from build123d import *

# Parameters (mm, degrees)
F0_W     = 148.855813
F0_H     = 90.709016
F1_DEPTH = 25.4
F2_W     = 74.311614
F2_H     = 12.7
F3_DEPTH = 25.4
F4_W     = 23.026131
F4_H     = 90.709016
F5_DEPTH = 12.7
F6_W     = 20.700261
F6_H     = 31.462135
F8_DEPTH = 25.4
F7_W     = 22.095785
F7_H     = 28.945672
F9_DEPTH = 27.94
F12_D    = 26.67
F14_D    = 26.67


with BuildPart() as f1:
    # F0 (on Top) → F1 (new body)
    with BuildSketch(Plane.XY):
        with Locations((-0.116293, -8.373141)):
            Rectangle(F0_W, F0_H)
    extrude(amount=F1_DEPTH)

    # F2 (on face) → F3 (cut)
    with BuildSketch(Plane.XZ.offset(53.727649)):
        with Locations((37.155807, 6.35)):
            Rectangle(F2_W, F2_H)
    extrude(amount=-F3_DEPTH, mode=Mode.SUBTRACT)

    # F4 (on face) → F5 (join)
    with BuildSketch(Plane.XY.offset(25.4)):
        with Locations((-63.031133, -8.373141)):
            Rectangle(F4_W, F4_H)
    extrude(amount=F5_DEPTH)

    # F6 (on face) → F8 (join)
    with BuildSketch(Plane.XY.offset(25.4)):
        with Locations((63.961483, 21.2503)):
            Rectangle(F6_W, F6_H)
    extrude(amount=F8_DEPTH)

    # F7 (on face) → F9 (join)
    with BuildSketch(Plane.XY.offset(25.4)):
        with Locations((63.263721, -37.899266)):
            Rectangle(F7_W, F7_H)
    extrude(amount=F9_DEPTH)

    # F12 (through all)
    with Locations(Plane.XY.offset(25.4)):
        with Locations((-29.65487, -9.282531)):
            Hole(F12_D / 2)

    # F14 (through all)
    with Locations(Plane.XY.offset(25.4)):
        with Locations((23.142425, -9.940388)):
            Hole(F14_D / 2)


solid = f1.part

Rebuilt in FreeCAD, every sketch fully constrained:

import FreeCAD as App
import Part
import Sketcher

V = App.Vector
Q = App.Units.Quantity

doc = App.newDocument("Part")
params = doc.addObject("Spreadsheet::Sheet", "Params")
for row, (alias, value) in enumerate([
    ("pad1_length", "1 in"),
    ("sketch2_height", "0.5 in"),
    ("pocket1_length", "1 in"),
    ("pad2_length", "0.5 in"),
    ("pad3_length", "1 in"),
    ("pad4_length", "1.1 in"),
    ("sketch6_diameter", "1.05 in"),
    ("hole_diameter", "1.05 in"),
    ("sketch7_diameter", "1.05 in"),
    ("hole2_diameter", "1.05 in"),
], start=1):
    params.set(f"A{row}", alias)
    params.set(f"B{row}", "=" + value)
    params.setAlias(f"B{row}", alias)

body = doc.addObject("PartDesign::Body", "Body")

sketch1 = body.newObject("Sketcher::SketchObject", "Sketch")
sketch1.AttachmentSupport = (doc.getObject("XY_Plane"), [""])
sketch1.MapMode = "FlatFace"
sketch1.addGeometry([
    Part.LineSegment(V(-75, 37, 0), V(-75, -54, 0)),
    Part.LineSegment(V(-75, -54, 0), V(74, -54, 0)),
    Part.LineSegment(V(74, -54, 0), V(74, 37, 0)),
    Part.LineSegment(V(74, 37, 0), V(-75, 37, 0)),
], False)
sketch1.addConstraint([
    Sketcher.Constraint("Coincident", 0, 2, 1, 1),
    Sketcher.Constraint("Coincident", 1, 2, 2, 1),
    Sketcher.Constraint("Coincident", 2, 2, 3, 1),
    Sketcher.Constraint("Coincident", 3, 2, 0, 1),
    Sketcher.Constraint("Vertical", 0),
    Sketcher.Constraint("Horizontal", 1),
    Sketcher.Constraint("Vertical", 2),
    Sketcher.Constraint("Horizontal", 3),
    Sketcher.Constraint("DistanceX", 0, 2, -1, 1, 74.5442),
    Sketcher.Constraint("DistanceX", 1, 1, 1, 2, 148.855813),
    Sketcher.Constraint("DistanceY", 0, 2, 0, 1, 90.709016),
    Sketcher.Constraint("DistanceY", 0, 2, -1, 1, 53.727649),
])
pad1 = body.newObject("PartDesign::Pad", "Pad")
pad1.Profile = sketch1
pad1.setExpression("Length", "Params.pad1_length")

sketch2 = body.newObject("Sketcher::SketchObject", "Sketch001")
sketch2.AttachmentSupport = (doc.getObject("XZ_Plane"), [""])
sketch2.MapMode = "FlatFace"
sketch2.AttachmentOffset = App.Placement(V(0, 0, 53.727649), App.Rotation())
sketch2.addGeometry([
    Part.LineSegment(V(0, 13, 0), V(0, 0, 0)),
    Part.LineSegment(V(0, 0, 0), V(74, 0, 0)),
    Part.LineSegment(V(74, 0, 0), V(74, 13, 0)),
    Part.LineSegment(V(74, 13, 0), V(0, 13, 0)),
], False)
sketch2.addConstraint([
    Sketcher.Constraint("Coincident", 0, 2, 1, 1),
    Sketcher.Constraint("Coincident", 1, 2, 2, 1),
    Sketcher.Constraint("Coincident", 2, 2, 3, 1),
    Sketcher.Constraint("Coincident", 3, 2, 0, 1),
    Sketcher.Constraint("Vertical", 0),
    Sketcher.Constraint("Horizontal", 1),
    Sketcher.Constraint("Vertical", 2),
    Sketcher.Constraint("Horizontal", 3),
    Sketcher.Constraint("Coincident", 0, 2, -1, 1),
    Sketcher.Constraint("DistanceY", 0, 2, 0, 1, Q("0.5 in")),
    Sketcher.Constraint("DistanceX", 1, 1, 1, 2, 74.311614),
])
sketch2.setExpression("Constraints[9]", "Params.sketch2_height")
pocket1 = body.newObject("PartDesign::Pocket", "Pocket")
pocket1.Profile = sketch2
pocket1.setExpression("Length", "Params.pocket1_length")

sketch3 = body.newObject("Sketcher::SketchObject", "Sketch002")
sketch3.AttachmentSupport = (doc.getObject("XY_Plane"), [""])
sketch3.MapMode = "FlatFace"
sketch3.AttachmentOffset = App.Placement(V(0, 0, 1 * 25.4), App.Rotation())
sketch3.addGeometry([
    Part.LineSegment(V(-75, 37, 0), V(-75, -54, 0)),
    Part.LineSegment(V(-75, -54, 0), V(-52, -54, 0)),
    Part.LineSegment(V(-52, -54, 0), V(-52, 37, 0)),
    Part.LineSegment(V(-52, 37, 0), V(-75, 37, 0)),
], False)
sketch3.addConstraint([
    Sketcher.Constraint("Coincident", 0, 2, 1, 1),
    Sketcher.Constraint("Coincident", 1, 2, 2, 1),
    Sketcher.Constraint("Coincident", 2, 2, 3, 1),
    Sketcher.Constraint("Coincident", 3, 2, 0, 1),
    Sketcher.Constraint("Vertical", 0),
    Sketcher.Constraint("Horizontal", 1),
    Sketcher.Constraint("Vertical", 2),
    Sketcher.Constraint("Horizontal", 3),
    Sketcher.Constraint("DistanceX", 1, 1, 1, 2, 23.026131),
    Sketcher.Constraint("DistanceX", 0, 2, -1, 1, 74.544198),
    Sketcher.Constraint("DistanceY", 0, 2, 0, 1, 90.709016),
    Sketcher.Constraint("DistanceY", 0, 2, -1, 1, 53.727649),
])
pad2 = body.newObject("PartDesign::Pad", "Pad001")
pad2.Profile = sketch3
pad2.setExpression("Length", "Params.pad2_length")

sketch4 = body.newObject("Sketcher::SketchObject", "Sketch003")
sketch4.AttachmentSupport = (doc.getObject("XY_Plane"), [""])
sketch4.MapMode = "FlatFace"
sketch4.AttachmentOffset = App.Placement(V(0, 0, 1 * 25.4), App.Rotation())
sketch4.addGeometry([
    Part.LineSegment(V(54, 37, 0), V(54, 6, 0)),
    Part.LineSegment(V(54, 6, 0), V(74, 6, 0)),
    Part.LineSegment(V(74, 6, 0), V(74, 37, 0)),
    Part.LineSegment(V(74, 37, 0), V(54, 37, 0)),
], False)
sketch4.addConstraint([
    Sketcher.Constraint("Coincident", 0, 2, 1, 1),
    Sketcher.Constraint("Coincident", 1, 2, 2, 1),
    Sketcher.Constraint("Coincident", 2, 2, 3, 1),
    Sketcher.Constraint("Coincident", 3, 2, 0, 1),
    Sketcher.Constraint("Vertical", 0),
    Sketcher.Constraint("Horizontal", 1),
    Sketcher.Constraint("Vertical", 2),
    Sketcher.Constraint("Horizontal", 3),
    Sketcher.Constraint("DistanceX", 1, 1, 1, 2, 20.700261),
    Sketcher.Constraint("DistanceY", 0, 2, 0, 1, 31.462135),
    Sketcher.Constraint("DistanceX", -1, 1, 0, 2, 53.611353),
    Sketcher.Constraint("DistanceY", -1, 1, 0, 2, 5.519233),
])
pad3 = body.newObject("PartDesign::Pad", "Pad002")
pad3.Profile = sketch4
pad3.setExpression("Length", "Params.pad3_length")

sketch5 = body.newObject("Sketcher::SketchObject", "Sketch004")
sketch5.AttachmentSupport = (doc.getObject("XY_Plane"), [""])
sketch5.MapMode = "FlatFace"
sketch5.AttachmentOffset = App.Placement(V(0, 0, 1 * 25.4), App.Rotation())
sketch5.addGeometry([
    Part.LineSegment(V(52, -23, 0), V(52, -52, 0)),
    Part.LineSegment(V(52, -52, 0), V(74, -52, 0)),
    Part.LineSegment(V(74, -52, 0), V(74, -23, 0)),
    Part.LineSegment(V(74, -23, 0), V(52, -23, 0)),
], False)
sketch5.addConstraint([
    Sketcher.Constraint("Coincident", 0, 2, 1, 1),
    Sketcher.Constraint("Coincident", 1, 2, 2, 1),
    Sketcher.Constraint("Coincident", 2, 2, 3, 1),
    Sketcher.Constraint("Coincident", 3, 2, 0, 1),
    Sketcher.Constraint("Vertical", 0),
    Sketcher.Constraint("Horizontal", 1),
    Sketcher.Constraint("Vertical", 2),
    Sketcher.Constraint("Horizontal", 3),
    Sketcher.Constraint("DistanceY", 0, 2, 0, 1, 28.945672),
    Sketcher.Constraint("DistanceY", 0, 2, -1, 1, 52.372102),
    Sketcher.Constraint("DistanceX", 1, 1, 1, 2, 22.095785),
    Sketcher.Constraint("DistanceX", -1, 1, 0, 2, 52.215829),
])
pad4 = body.newObject("PartDesign::Pad", "Pad003")
pad4.Profile = sketch5
pad4.setExpression("Length", "Params.pad4_length")

sketch6 = body.newObject("Sketcher::SketchObject", "Sketch005")
sketch6.AttachmentSupport = (doc.getObject("XY_Plane"), [""])
sketch6.MapMode = "FlatFace"
sketch6.AttachmentOffset = App.Placement(V(0, 0, 1 * 25.4), App.Rotation())
sketch6.addGeometry(Part.Circle(V(-30, -9, 0), V(0, 0, 1), 13), False)
sketch6.addConstraint([
    Sketcher.Constraint("Diameter", 0, Q("1.05 in")),
    Sketcher.Constraint("DistanceX", 0, 3, -1, 1, 29.65487),
    Sketcher.Constraint("DistanceY", 0, 3, -1, 1, 9.282531),
])
sketch6.setExpression("Constraints[0]", "Params.sketch6_diameter")
doc.recompute()
hole = body.newObject("PartDesign::Hole", "Hole")
hole.Profile = sketch6
hole.ThreadType = "None"
hole.setExpression("Diameter", "Params.hole_diameter")
hole.DepthType = "ThroughAll"

sketch7 = body.newObject("Sketcher::SketchObject", "Sketch006")
sketch7.AttachmentSupport = (doc.getObject("XY_Plane"), [""])
sketch7.MapMode = "FlatFace"
sketch7.AttachmentOffset = App.Placement(V(0, 0, 1 * 25.4), App.Rotation())
sketch7.addGeometry(Part.Circle(V(23, -10, 0), V(0, 0, 1), 13), False)
sketch7.addConstraint([
    Sketcher.Constraint("Diameter", 0, Q("1.05 in")),
    Sketcher.Constraint("DistanceX", -1, 1, 0, 3, 23.142425),
    Sketcher.Constraint("DistanceY", 0, 3, -1, 1, 9.940388),
])
sketch7.setExpression("Constraints[0]", "Params.sketch7_diameter")
doc.recompute()
hole2 = body.newObject("PartDesign::Hole", "Hole001")
hole2.Profile = sketch7
hole2.ThreadType = "None"
hole2.setExpression("Diameter", "Params.hole2_diameter")
hole2.DepthType = "ThroughAll"

doc.recompute()
